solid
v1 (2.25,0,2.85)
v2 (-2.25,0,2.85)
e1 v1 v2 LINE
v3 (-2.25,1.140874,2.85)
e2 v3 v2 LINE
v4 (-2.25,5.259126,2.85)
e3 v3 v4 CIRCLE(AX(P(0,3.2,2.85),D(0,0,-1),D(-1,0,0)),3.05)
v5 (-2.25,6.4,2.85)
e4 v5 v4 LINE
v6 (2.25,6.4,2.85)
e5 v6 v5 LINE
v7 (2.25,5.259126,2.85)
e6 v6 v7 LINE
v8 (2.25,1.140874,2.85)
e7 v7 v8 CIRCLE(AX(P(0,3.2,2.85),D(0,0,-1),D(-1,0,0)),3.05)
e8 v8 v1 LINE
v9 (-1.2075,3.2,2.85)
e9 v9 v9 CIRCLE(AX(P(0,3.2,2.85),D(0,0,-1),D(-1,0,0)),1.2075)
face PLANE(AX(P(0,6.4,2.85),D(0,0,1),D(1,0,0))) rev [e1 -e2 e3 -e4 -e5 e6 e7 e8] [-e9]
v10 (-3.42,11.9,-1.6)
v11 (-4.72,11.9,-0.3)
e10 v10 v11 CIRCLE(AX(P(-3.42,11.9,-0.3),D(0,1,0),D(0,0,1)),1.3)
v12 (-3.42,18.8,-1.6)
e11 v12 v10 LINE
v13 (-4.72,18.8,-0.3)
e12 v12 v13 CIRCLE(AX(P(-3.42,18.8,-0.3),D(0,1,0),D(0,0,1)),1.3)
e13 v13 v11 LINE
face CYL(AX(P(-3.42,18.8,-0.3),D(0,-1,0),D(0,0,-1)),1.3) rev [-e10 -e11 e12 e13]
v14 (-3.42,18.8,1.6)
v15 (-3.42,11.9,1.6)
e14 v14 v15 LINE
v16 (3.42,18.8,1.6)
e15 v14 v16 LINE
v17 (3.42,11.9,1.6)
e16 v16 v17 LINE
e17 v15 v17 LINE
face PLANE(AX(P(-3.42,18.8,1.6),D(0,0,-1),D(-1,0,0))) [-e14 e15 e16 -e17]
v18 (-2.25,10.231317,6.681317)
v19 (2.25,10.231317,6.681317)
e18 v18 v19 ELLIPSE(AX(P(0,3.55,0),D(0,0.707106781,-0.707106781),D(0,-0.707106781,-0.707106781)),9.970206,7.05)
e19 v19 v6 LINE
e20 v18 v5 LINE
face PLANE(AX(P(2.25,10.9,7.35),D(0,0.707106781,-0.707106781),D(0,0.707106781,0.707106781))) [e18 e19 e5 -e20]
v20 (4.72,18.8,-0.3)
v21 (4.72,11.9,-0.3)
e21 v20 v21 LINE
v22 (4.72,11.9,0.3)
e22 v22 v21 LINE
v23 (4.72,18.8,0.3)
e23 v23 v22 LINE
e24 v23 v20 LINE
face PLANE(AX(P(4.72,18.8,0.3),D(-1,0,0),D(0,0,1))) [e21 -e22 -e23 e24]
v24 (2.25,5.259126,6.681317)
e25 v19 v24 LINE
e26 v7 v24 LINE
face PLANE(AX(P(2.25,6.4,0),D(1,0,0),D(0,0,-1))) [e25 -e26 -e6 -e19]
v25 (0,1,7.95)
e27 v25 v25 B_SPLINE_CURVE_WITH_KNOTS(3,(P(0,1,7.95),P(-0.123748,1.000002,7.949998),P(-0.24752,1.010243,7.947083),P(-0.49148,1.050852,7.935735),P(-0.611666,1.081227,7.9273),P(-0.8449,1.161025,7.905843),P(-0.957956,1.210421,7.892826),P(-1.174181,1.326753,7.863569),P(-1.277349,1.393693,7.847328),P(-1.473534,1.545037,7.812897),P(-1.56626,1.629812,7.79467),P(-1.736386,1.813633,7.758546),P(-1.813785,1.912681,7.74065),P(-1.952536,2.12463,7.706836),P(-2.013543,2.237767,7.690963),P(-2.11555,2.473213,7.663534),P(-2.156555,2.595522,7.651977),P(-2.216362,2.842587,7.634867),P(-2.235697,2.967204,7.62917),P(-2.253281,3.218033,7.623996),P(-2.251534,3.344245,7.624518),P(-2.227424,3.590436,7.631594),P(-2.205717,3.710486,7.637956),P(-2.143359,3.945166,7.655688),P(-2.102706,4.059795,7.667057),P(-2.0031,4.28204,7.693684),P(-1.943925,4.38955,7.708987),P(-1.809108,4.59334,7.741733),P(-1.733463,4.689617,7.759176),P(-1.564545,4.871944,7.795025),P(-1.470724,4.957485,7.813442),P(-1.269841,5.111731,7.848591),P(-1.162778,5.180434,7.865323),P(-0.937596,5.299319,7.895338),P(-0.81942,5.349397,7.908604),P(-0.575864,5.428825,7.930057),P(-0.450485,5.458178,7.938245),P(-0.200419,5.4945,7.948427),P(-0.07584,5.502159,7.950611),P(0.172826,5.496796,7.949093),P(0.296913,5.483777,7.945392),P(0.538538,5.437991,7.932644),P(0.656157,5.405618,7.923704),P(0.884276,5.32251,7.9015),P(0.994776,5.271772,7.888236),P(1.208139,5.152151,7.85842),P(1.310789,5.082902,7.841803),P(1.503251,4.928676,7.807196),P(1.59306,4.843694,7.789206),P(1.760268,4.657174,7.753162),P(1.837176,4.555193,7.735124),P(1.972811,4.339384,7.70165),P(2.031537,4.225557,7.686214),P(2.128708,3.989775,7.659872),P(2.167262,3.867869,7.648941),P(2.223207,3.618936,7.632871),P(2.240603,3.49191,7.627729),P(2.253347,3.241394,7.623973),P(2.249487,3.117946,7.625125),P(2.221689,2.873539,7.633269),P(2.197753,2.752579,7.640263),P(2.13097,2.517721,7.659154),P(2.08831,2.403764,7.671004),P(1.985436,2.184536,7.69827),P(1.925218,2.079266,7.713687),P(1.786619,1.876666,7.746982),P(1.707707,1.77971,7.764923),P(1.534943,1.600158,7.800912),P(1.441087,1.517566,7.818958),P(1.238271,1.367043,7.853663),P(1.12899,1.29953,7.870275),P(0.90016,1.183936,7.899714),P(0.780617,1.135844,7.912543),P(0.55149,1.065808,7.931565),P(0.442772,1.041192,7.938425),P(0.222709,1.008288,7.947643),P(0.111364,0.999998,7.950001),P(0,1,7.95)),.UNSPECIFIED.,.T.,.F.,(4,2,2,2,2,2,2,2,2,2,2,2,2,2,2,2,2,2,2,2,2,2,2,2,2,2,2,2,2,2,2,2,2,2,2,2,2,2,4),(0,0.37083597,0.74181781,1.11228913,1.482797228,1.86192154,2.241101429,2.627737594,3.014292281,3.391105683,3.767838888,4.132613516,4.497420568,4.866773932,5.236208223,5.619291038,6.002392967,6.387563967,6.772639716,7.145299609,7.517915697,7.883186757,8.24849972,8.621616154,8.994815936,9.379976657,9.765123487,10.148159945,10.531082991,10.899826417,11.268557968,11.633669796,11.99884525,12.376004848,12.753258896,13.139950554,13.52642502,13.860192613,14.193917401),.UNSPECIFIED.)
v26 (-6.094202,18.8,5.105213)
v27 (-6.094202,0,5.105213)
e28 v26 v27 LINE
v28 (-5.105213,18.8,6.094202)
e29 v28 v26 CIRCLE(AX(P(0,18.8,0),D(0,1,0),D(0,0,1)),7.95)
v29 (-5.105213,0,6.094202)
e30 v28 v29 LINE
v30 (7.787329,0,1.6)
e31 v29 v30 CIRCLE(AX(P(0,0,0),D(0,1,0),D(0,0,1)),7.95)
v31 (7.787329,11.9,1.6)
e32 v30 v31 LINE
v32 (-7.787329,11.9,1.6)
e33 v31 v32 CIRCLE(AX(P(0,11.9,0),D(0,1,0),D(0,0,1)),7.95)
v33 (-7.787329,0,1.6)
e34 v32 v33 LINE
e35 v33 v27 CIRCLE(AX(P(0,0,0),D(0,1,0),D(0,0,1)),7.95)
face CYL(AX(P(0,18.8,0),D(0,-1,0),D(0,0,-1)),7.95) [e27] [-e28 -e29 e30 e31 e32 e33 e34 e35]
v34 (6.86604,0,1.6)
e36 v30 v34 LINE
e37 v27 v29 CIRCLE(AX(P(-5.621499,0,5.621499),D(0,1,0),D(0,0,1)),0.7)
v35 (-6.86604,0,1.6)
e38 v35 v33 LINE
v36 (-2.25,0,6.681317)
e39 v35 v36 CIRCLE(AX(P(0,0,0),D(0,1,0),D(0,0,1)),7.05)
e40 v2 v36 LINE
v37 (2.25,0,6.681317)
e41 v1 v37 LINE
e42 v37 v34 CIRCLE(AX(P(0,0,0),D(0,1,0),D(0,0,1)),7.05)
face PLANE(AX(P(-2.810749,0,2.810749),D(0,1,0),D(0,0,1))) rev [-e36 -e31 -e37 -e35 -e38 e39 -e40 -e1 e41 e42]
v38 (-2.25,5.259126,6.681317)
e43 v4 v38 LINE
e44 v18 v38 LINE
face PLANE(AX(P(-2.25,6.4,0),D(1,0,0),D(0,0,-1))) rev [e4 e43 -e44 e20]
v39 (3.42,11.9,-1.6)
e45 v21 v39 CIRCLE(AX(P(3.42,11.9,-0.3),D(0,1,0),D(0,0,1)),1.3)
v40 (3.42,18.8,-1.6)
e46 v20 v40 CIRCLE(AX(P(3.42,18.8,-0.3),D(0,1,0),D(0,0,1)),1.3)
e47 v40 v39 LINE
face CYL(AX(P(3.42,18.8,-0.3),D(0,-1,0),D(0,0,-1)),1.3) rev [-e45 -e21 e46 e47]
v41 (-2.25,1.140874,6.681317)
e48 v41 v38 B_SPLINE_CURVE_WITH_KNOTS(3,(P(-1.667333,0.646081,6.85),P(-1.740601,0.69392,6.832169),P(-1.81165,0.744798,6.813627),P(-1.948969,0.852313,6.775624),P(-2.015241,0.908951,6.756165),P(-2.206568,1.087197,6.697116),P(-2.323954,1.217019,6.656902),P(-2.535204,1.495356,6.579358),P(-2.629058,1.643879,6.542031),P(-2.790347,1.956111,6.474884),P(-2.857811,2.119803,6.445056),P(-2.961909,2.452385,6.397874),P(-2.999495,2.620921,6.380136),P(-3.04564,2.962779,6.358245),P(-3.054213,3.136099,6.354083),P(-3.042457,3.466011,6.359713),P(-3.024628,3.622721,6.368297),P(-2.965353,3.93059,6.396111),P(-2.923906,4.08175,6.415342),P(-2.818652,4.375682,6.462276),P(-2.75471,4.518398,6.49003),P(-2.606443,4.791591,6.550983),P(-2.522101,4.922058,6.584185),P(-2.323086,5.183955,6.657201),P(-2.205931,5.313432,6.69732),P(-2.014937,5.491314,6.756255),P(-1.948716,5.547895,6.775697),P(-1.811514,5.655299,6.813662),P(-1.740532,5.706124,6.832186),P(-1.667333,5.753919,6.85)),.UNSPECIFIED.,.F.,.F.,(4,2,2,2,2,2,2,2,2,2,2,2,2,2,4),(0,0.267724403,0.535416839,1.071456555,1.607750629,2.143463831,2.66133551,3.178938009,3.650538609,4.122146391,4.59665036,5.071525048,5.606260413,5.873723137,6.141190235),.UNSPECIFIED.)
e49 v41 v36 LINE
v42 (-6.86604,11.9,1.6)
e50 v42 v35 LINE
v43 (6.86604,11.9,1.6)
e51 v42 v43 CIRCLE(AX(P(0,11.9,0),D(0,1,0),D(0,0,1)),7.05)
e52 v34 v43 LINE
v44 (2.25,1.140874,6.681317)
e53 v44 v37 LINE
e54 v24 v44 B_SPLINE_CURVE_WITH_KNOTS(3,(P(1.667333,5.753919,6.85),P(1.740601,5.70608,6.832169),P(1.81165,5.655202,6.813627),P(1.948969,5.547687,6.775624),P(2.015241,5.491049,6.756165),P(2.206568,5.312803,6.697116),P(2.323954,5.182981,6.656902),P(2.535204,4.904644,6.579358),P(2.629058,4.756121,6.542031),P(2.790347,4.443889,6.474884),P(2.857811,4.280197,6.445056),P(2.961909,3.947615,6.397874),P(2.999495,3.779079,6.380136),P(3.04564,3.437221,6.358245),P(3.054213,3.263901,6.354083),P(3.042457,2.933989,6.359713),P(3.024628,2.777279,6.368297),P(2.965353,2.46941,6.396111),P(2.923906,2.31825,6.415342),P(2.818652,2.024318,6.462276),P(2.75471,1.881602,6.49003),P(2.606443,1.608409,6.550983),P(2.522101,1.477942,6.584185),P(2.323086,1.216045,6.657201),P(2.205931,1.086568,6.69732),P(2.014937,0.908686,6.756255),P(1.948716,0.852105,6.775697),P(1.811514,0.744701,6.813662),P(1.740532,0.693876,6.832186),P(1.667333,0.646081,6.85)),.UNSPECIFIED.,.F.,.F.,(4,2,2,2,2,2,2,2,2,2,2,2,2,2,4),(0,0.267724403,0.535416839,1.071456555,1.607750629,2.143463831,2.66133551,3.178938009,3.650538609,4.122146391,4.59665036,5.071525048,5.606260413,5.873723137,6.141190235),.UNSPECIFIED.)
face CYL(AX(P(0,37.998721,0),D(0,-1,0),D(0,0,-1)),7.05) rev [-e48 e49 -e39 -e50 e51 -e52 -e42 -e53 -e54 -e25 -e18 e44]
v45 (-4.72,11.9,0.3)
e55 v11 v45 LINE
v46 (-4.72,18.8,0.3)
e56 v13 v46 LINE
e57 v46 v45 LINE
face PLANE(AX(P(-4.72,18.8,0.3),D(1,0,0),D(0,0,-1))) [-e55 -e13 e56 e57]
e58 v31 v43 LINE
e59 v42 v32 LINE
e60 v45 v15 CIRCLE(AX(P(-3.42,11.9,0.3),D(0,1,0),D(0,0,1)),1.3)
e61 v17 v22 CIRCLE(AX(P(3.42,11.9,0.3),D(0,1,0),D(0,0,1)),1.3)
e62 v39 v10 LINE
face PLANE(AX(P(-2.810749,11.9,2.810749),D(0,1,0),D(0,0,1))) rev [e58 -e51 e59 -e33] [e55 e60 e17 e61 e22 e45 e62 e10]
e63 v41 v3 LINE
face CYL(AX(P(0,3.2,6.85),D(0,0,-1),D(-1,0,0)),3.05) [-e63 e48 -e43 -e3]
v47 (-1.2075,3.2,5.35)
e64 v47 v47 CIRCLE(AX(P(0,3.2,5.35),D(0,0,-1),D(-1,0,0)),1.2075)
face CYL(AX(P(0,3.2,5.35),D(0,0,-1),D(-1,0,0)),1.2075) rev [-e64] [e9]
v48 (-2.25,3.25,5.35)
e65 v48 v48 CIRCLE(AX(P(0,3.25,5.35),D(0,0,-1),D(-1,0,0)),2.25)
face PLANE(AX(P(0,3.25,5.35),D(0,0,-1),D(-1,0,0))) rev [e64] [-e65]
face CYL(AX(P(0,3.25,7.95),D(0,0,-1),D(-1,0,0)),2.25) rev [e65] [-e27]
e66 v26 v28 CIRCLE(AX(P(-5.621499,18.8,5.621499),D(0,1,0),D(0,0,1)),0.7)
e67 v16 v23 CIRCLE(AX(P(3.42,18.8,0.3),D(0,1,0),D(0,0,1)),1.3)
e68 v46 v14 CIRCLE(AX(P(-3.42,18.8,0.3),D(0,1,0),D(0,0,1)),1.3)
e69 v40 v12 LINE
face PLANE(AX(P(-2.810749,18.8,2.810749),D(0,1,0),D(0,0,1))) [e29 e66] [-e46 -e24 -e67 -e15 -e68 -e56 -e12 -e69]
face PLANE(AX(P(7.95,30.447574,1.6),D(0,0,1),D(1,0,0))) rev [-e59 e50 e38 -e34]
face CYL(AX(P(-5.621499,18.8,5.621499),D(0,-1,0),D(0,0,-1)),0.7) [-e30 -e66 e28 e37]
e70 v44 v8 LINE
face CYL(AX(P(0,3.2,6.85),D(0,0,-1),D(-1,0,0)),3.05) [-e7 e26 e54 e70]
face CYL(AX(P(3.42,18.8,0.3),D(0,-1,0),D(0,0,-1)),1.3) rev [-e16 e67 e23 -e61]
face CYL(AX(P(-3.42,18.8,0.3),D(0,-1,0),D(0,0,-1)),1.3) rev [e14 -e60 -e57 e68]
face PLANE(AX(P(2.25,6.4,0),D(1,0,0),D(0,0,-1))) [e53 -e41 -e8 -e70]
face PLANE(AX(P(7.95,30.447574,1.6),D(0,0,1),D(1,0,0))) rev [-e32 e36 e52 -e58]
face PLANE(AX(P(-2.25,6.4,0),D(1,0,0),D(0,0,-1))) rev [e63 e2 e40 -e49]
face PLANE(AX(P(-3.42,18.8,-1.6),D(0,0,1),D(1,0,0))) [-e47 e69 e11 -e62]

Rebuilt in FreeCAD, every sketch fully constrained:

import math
import FreeCAD as App
import Part
import Sketcher

doc = App.newDocument("Part")
body = doc.addObject("PartDesign::Body", "Body")

sketch1 = body.newObject("Sketcher::SketchObject", "Sketch")
sketch1.AttachmentSupport = (doc.getObject("XZ_Plane"), [""])
sketch1.MapMode = "FlatFace"
sketch1.addGeometry([
    Part.ArcOfCircle(Part.Circle(App.Vector(0, 0, 0), App.Vector(0, 0, 1), 8), math.radians(140), math.radians(490)),
    Part.ArcOfCircle(Part.Circle(App.Vector(-5.6, 5.6, 0), App.Vector(0, 0, 1), 0.7), math.radians(42), math.radians(228)),
    Part.ArcOfCircle(Part.Circle(App.Vector(-3.4, -0.3, 0), App.Vector(0, 0, 1), 1.3), math.radians(180), math.radians(270)),
    Part.LineSegment(App.Vector(-3.4, -1.6, 0), App.Vector(3.4, -1.6, 0)),
    Part.ArcOfCircle(Part.Circle(App.Vector(3.4, -0.3, 0), App.Vector(0, 0, 1), 1.3), math.radians(-90), math.radians(0)),
    Part.LineSegment(App.Vector(4.7, -0.3, 0), App.Vector(4.7, 0.3, 0)),
    Part.ArcOfCircle(Part.Circle(App.Vector(3.4, 0.3, 0), App.Vector(0, 0, 1), 1.3), math.radians(0), math.radians(90)),
    Part.LineSegment(App.Vector(3.4, 1.6, 0), App.Vector(-3.4, 1.6, 0)),
    Part.ArcOfCircle(Part.Circle(App.Vector(-3.4, 0.3, 0), App.Vector(0, 0, 1), 1.3), math.radians(90), math.radians(180)),
    Part.LineSegment(App.Vector(-4.7, 0.3, 0), App.Vector(-4.7, -0.3, 0)),
], False)
sketch1.addConstraint([
    Sketcher.Constraint("Coincident", 0, 1, 1, 2),
    Sketcher.Constraint("Coincident", 1, 1, 0, 2),
    Sketcher.Constraint("Tangent", 2, 2, 3, 1),
    Sketcher.Constraint("Tangent", 3, 2, 4, 1),
    Sketcher.Constraint("Tangent", 4, 2, 5, 1),
    Sketcher.Constraint("Tangent", 5, 2, 6, 1),
    Sketcher.Constraint("Tangent", 6, 2, 7, 1),
    Sketcher.Constraint("Tangent", 7, 2, 8, 1),
    Sketcher.Constraint("Tangent", 8, 2, 9, 1),
    Sketcher.Constraint("Tangent", 9, 2, 2, 1),
    Sketcher.Constraint("Horizontal", 3),
    Sketcher.Constraint("Vertical", 5),
    Sketcher.Constraint("Horizontal", 7),
    Sketcher.Constraint("Vertical", 9),
    Sketcher.Constraint("Coincident", 0, 3, -1, 1),
    Sketcher.Constraint("Equal", 2, 4),
    Sketcher.Constraint("Equal", 4, 6),
    Sketcher.Constraint("Equal", 6, 8),
    Sketcher.Constraint("Symmetric", 2, 3, 6, 3, -1, 1),
    Sketcher.Constraint("Radius", 1, 0.7),
    Sketcher.Constraint("Radius", 2, 1.3),
    Sketcher.Constraint("Radius", 0, 7.95),
    Sketcher.Constraint("DistanceY", 5, 1, 5, 2, 0.6),
    Sketcher.Constraint("DistanceX", 3, 1, 3, 2, 6.84),
    Sketcher.Constraint("DistanceX", 1, 3, -1, 1, 5.621499),
    Sketcher.Constraint("DistanceY", -1, 1, 1, 3, 5.621499),
])
pad1 = body.newObject("PartDesign::Pad", "Pad")
pad1.Profile = sketch1
pad1.Length = 18.8
pad1.Reversed = True

sketch2 = body.newObject("Sketcher::SketchObject", "Sketch001")
sketch2.AttachmentSupport = (doc.getObject("XZ_Plane"), [""])
sketch2.MapMode = "FlatFace"
sketch2.addGeometry([
    Part.LineSegment(App.Vector(-6, -3.7, 0), App.Vector(-6, 3.7, 0)),
    Part.ArcOfCircle(Part.Circle(App.Vector(0, 0, 0), App.Vector(0, 0, 1), 7.1), math.radians(121), math.radians(148)),
    Part.ArcOfCircle(Part.Circle(App.Vector(0, 0, 0), App.Vector(0, 0, 1), 7), math.radians(0), math.radians(121)),
    Part.ArcOfCircle(Part.Circle(App.Vector(0, 0, 0), App.Vector(0, 0, 1), 7), math.radians(-148), math.radians(0)),
    Part.ArcOfCircle(Part.Circle(App.Vector(-3.4, 0.3, 0), App.Vector(0, 0, 1), 1.3), math.radians(90), math.radians(180)),
    Part.LineSegment(App.Vector(-4.7, 0.3, 0), App.Vector(-4.7, -0.3, 0)),
    Part.ArcOfCircle(Part.Circle(App.Vector(-3.4, -0.3, 0), App.Vector(0, 0, 1), 1.3), math.radians(180), math.radians(270)),
    Part.LineSegment(App.Vector(-3.4, -1.6, 0), App.Vector(3.4, -1.6, 0)),
    Part.ArcOfCircle(Part.Circle(App.Vector(3.4, -0.3, 0), App.Vector(0, 0, 1), 1.3), math.radians(-90), math.radians(0)),
    Part.LineSegment(App.Vector(4.7, -0.3, 0), App.Vector(4.7, 0.3, 0)),
    Part.ArcOfCircle(Part.Circle(App.Vector(3.4, 0.3, 0), App.Vector(0, 0, 1), 1.3), math.radians(0), math.radians(90)),
    Part.LineSegment(App.Vector(3.4, 1.6, 0), App.Vector(-3.4, 1.6, 0)),
], False)
sketch2.addConstraint([
    Sketcher.Constraint("Coincident", 0, 2, 1, 2),
    Sketcher.Constraint("Tangent", 1, 1, 2, 2),
    Sketcher.Constraint("Tangent", 2, 1, 3, 2),
    Sketcher.Constraint("Coincident", 3, 1, 0, 1),
    Sketcher.Constraint("Tangent", 4, 2, 5, 1),
    Sketcher.Constraint("Tangent", 5, 2, 6, 1),
    Sketcher.Constraint("Tangent", 6, 2, 7, 1),
    Sketcher.Constraint("Tangent", 7, 2, 8, 1),
    Sketcher.Constraint("Tangent", 8, 2, 9, 1),
    Sketcher.Constraint("Tangent", 9, 2, 10, 1),
    Sketcher.Constraint("Tangent", 10, 2, 11, 1),
    Sketcher.Constraint("Tangent", 11, 2, 4, 1),
    Sketcher.Constraint("Vertical", 0),
    Sketcher.Constraint("Vertical", 5),
    Sketcher.Constraint("Horizontal", 7),
    Sketcher.Constraint("Vertical", 9),
    Sketcher.Constraint("Horizontal", 11),
    Sketcher.Constraint("Coincident", 1, 3, -1, 1),
    Sketcher.Constraint("Coincident", 3, 3, -1, 1),
    Sketcher.Constraint("Equal", 4, 6),
    Sketcher.Constraint("Equal", 6, 8),
    Sketcher.Constraint("Equal", 8, 10),
    Sketcher.Constraint("Symmetric", 4, 3, 8, 3, -1, 1),
    Sketcher.Constraint("PointOnObject", 2, 1, -1),
    Sketcher.Constraint("Radius", 4, 1.3),
    Sketcher.Constraint("Radius", 1, 7.05),
    Sketcher.Constraint("DistanceY", 5, 2, 5, 1, 0.6),
    Sketcher.Constraint("DistanceX", 7, 1, 7, 2, 6.84),
    Sketcher.Constraint("DistanceX", 0, 2, -1, 1, 5.98),
    Sketcher.Constraint("DistanceX", 1, 1, -1, 1, 3.588649),
])
pocket1 = body.newObject("PartDesign::Pocket", "Pocket")
pocket1.Profile = sketch2
pocket1.Length = 11.9

sketch3 = body.newObject("Sketcher::SketchObject", "Sketch002")
sketch3.AttachmentSupport = (doc.getObject("XZ_Plane"), [""])
sketch3.MapMode = "FlatFace"
sketch3.addGeometry([
    Part.LineSegment(App.Vector(-2.2, 6.7, 0), App.Vector(-2.2, 2.9, 0)),
    Part.LineSegment(App.Vector(-2.2, 2.9, 0), App.Vector(2.2, 2.9, 0)),
    Part.LineSegment(App.Vector(2.2, 2.9, 0), App.Vector(2.2, 6.7, 0)),
    Part.ArcOfCircle(Part.Circle(App.Vector(0, 0, 0), App.Vector(0, 0, 1), 7), math.radians(71), math.radians(109)),
], False)
sketch3.addConstraint([
    Sketcher.Constraint("Coincident", 0, 2, 1, 1),
    Sketcher.Constraint("Coincident", 1, 2, 2, 1),
    Sketcher.Constraint("Coincident", 2, 2, 3, 1),
    Sketcher.Constraint("Coincident", 3, 2, 0, 1),
    Sketcher.Constraint("Vertical", 0),
    Sketcher.Constraint("Horizontal", 1),
    Sketcher.Constraint("Vertical", 2),
    Sketcher.Constraint("Coincident", 3, 3, -1, 1),
    Sketcher.Constraint("Horizontal", 2, 2, 3, 2),
    Sketcher.Constraint("Radius", 3, 7.05),
    Sketcher.Constraint("DistanceX", 1, 1, 1, 2, 4.5),
    Sketcher.Constraint("DistanceY", -1, 1, 0, 2, 2.85),
])
pad2 = body.newObject("PartDesign::Pad", "Pad001")
pad2.Profile = sketch3
pad2.Length = 6.4
pad2.Reversed = True

sketch4 = body.newObject("Sketcher::SketchObject", "Sketch003")
sketch4.AttachmentSupport = (doc.getObject("XY_Plane"), [""])
sketch4.MapMode = "FlatFace"
sketch4.AttachmentOffset = App.Placement(App.Vector(0, 0, 2.85), App.Rotation())
sketch4.addGeometry(Part.Circle(App.Vector(0, 3.2, 0), App.Vector(0, 0, 1), 1.2), False)
sketch4.addConstraint([
    Sketcher.Constraint("PointOnObject", 0, 3, -2),
    Sketcher.Constraint("Diameter", 0, 2.415),
    Sketcher.Constraint("DistanceY", -1, 1, 0, 3, 3.2),
])
pocket2 = body.newObject("PartDesign::Pocket", "Pocket001")
pocket2.Profile = sketch4
pocket2.Length = 2.5
pocket2.Reversed = True

sketch5 = body.newObject("Sketcher::SketchObject", "Sketch004")
sketch5.AttachmentSupport = (doc.getObject("XY_Plane"), [""])
sketch5.MapMode = "FlatFace"
sketch5.AttachmentOffset = App.Placement(App.Vector(0, 0, 2.85), App.Rotation())
sketch5.addGeometry([
    Part.Circle(App.Vector(0, 3.2, 0), App.Vector(0, 0, 1), 3),
    Part.Circle(App.Vector(0, 3.2, 0), App.Vector(0, 0, 1), 1.2),
], False)
sketch5.addConstraint([
    Sketcher.Constraint("Coincident", 1, 3, 0, 3),
    Sketcher.Constraint("PointOnObject", 0, 3, -2),
    Sketcher.Constraint("Diameter", 0, 6.1),
    Sketcher.Constraint("Diameter", 1, 2.415),
    Sketcher.Constraint("DistanceY", -1, 1, 0, 3, 3.2),
])
pad3 = body.newObject("PartDesign::Pad", "Pad002")
pad3.Profile = sketch5
pad3.Length = 4

sketch6 = body.newObject("Sketcher::SketchObject", "Sketch005")
sketch6.AttachmentSupport = (doc.getObject("XY_Plane"), [""])
sketch6.MapMode = "FlatFace"
sketch6.AttachmentOffset = App.Placement(App.Vector(0, 0, 5.35), App.Rotation())
sketch6.addGeometry(Part.Circle(App.Vector(0, 3.2, 0), App.Vector(0, 0, 1), 2.2), False)
sketch6.addConstraint([
    Sketcher.Constraint("PointOnObject", 0, 3, -2),
    Sketcher.Constraint("Diameter", 0, 4.5),
    Sketcher.Constraint("DistanceY", -1, 1, 0, 3, 3.25),
])
pocket3 = body.newObject("PartDesign::Pocket", "Pocket002")
pocket3.Profile = sketch6
pocket3.Type = "ThroughAll"
pocket3.Reversed = True

sketch7 = body.newObject("Sketcher::SketchObject", "Sketch006")
sketch7.AttachmentSupport = (doc.getObject("YZ_Plane"), [""])
sketch7.MapMode = "FlatFace"
sketch7.AttachmentOffset = App.Placement(App.Vector(0, 0, -2.25), App.Rotation())
sketch7.addGeometry([
    Part.LineSegment(App.Vector(6.4, 2.9, 0), App.Vector(6.4, 7.3, 0)),
    Part.LineSegment(App.Vector(6.4, 7.3, 0), App.Vector(10.9, 7.3, 0)),
    Part.LineSegment(App.Vector(10.9, 7.3, 0), App.Vector(6.4, 2.9, 0)),
], False)
sketch7.addConstraint([
    Sketcher.Constraint("Coincident", 0, 2, 1, 1),
    Sketcher.Constraint("Coincident", 1, 2, 2, 1),
    Sketcher.Constraint("Coincident", 2, 2, 0, 1),
    Sketcher.Constraint("Vertical", 0),
    Sketcher.Constraint("Horizontal", 1),
    Sketcher.Constraint("Equal", 1, 0),
    Sketcher.Constraint("DistanceX", 1, 1, 1, 2, 4.5),
    Sketcher.Constraint("DistanceX", -1, 1, 0, 2, 6.4),
    Sketcher.Constraint("DistanceY", -1, 1, 0, 2, 7.35),
])
pad4 = body.newObject("PartDesign::Pad", "Pad003")
pad4.Profile = sketch7
pad4.Length = 4.5

sketch8 = body.newObject("Sketcher::SketchObject", "Sketch007")
sketch8.AttachmentSupport = (doc.getObject("XZ_Plane"), [""])
sketch8.MapMode = "FlatFace"
sketch8.addGeometry([
    Part.ArcOfCircle(Part.Circle(App.Vector(0, 0, 0), App.Vector(0, 0, 1), 7), math.radians(148), math.radians(212)),
    Part.LineSegment(App.Vector(-6, 4, 0), App.Vector(-6, -4, 0)),
], False)
sketch8.addConstraint([
    Sketcher.Constraint("Coincident", 0, 1, 1, 1),
    Sketcher.Constraint("Coincident", 1, 2, 0, 2),
    Sketcher.Constraint("Vertical", 1),
    Sketcher.Constraint("Coincident", 0, 3, -1, 1),
    Sketcher.Constraint("Radius", 0, 7.05),
    Sketcher.Constraint("DistanceX", 0, 1, -1, 1, 5.98),
])
pocket4 = body.newObject("PartDesign::Pocket", "Pocket003")
pocket4.Profile = sketch8
pocket4.Length = 11.9

sketch9 = body.newObject("Sketcher::SketchObject", "Sketch008")
sketch9.AttachmentSupport = (doc.getObject("XZ_Plane"), [""])
sketch9.MapMode = "FlatFace"
sketch9.addGeometry([
    Part.LineSegment(App.Vector(-8, -8, 0), App.Vector(8, -8, 0)),
    Part.LineSegment(App.Vector(8, -8, 0), App.Vector(8, 2, 0)),
    Part.LineSegment(App.Vector(8, 2, 0), App.Vector(-8, 2, 0)),
    Part.LineSegment(App.Vector(-8, 2, 0), App.Vector(-8, -8, 0)),
], False)
sketch9.addConstraint([
    Sketcher.Constraint("Coincident", 0, 2, 1, 1),
    Sketcher.Constraint("Coincident", 1, 2, 2, 1),
    Sketcher.Constraint("Coincident", 2, 2, 3, 1),
    Sketcher.Constraint("Coincident", 3, 2, 0, 1),
    Sketcher.Constraint("Horizontal", 0),
    Sketcher.Constraint("Vertical", 1),
    Sketcher.Constraint("Horizontal", 2),
    Sketcher.Constraint("Vertical", 3),
    Sketcher.Constraint("DistanceX", 0, 1, 0, 2, 15.9),
    Sketcher.Constraint("DistanceY", 1, 1, 1, 2, 9.55),
    Sketcher.Constraint("DistanceY", -1, 1, 1, 2, 1.6),
    Sketcher.Constraint("DistanceX", -1, 1, 0, 2, 7.95),
])
pocket5 = body.newObject("PartDesign::Pocket", "Pocket004")
pocket5.Profile = sketch9
pocket5.Length = 11.9

doc.recompute()
